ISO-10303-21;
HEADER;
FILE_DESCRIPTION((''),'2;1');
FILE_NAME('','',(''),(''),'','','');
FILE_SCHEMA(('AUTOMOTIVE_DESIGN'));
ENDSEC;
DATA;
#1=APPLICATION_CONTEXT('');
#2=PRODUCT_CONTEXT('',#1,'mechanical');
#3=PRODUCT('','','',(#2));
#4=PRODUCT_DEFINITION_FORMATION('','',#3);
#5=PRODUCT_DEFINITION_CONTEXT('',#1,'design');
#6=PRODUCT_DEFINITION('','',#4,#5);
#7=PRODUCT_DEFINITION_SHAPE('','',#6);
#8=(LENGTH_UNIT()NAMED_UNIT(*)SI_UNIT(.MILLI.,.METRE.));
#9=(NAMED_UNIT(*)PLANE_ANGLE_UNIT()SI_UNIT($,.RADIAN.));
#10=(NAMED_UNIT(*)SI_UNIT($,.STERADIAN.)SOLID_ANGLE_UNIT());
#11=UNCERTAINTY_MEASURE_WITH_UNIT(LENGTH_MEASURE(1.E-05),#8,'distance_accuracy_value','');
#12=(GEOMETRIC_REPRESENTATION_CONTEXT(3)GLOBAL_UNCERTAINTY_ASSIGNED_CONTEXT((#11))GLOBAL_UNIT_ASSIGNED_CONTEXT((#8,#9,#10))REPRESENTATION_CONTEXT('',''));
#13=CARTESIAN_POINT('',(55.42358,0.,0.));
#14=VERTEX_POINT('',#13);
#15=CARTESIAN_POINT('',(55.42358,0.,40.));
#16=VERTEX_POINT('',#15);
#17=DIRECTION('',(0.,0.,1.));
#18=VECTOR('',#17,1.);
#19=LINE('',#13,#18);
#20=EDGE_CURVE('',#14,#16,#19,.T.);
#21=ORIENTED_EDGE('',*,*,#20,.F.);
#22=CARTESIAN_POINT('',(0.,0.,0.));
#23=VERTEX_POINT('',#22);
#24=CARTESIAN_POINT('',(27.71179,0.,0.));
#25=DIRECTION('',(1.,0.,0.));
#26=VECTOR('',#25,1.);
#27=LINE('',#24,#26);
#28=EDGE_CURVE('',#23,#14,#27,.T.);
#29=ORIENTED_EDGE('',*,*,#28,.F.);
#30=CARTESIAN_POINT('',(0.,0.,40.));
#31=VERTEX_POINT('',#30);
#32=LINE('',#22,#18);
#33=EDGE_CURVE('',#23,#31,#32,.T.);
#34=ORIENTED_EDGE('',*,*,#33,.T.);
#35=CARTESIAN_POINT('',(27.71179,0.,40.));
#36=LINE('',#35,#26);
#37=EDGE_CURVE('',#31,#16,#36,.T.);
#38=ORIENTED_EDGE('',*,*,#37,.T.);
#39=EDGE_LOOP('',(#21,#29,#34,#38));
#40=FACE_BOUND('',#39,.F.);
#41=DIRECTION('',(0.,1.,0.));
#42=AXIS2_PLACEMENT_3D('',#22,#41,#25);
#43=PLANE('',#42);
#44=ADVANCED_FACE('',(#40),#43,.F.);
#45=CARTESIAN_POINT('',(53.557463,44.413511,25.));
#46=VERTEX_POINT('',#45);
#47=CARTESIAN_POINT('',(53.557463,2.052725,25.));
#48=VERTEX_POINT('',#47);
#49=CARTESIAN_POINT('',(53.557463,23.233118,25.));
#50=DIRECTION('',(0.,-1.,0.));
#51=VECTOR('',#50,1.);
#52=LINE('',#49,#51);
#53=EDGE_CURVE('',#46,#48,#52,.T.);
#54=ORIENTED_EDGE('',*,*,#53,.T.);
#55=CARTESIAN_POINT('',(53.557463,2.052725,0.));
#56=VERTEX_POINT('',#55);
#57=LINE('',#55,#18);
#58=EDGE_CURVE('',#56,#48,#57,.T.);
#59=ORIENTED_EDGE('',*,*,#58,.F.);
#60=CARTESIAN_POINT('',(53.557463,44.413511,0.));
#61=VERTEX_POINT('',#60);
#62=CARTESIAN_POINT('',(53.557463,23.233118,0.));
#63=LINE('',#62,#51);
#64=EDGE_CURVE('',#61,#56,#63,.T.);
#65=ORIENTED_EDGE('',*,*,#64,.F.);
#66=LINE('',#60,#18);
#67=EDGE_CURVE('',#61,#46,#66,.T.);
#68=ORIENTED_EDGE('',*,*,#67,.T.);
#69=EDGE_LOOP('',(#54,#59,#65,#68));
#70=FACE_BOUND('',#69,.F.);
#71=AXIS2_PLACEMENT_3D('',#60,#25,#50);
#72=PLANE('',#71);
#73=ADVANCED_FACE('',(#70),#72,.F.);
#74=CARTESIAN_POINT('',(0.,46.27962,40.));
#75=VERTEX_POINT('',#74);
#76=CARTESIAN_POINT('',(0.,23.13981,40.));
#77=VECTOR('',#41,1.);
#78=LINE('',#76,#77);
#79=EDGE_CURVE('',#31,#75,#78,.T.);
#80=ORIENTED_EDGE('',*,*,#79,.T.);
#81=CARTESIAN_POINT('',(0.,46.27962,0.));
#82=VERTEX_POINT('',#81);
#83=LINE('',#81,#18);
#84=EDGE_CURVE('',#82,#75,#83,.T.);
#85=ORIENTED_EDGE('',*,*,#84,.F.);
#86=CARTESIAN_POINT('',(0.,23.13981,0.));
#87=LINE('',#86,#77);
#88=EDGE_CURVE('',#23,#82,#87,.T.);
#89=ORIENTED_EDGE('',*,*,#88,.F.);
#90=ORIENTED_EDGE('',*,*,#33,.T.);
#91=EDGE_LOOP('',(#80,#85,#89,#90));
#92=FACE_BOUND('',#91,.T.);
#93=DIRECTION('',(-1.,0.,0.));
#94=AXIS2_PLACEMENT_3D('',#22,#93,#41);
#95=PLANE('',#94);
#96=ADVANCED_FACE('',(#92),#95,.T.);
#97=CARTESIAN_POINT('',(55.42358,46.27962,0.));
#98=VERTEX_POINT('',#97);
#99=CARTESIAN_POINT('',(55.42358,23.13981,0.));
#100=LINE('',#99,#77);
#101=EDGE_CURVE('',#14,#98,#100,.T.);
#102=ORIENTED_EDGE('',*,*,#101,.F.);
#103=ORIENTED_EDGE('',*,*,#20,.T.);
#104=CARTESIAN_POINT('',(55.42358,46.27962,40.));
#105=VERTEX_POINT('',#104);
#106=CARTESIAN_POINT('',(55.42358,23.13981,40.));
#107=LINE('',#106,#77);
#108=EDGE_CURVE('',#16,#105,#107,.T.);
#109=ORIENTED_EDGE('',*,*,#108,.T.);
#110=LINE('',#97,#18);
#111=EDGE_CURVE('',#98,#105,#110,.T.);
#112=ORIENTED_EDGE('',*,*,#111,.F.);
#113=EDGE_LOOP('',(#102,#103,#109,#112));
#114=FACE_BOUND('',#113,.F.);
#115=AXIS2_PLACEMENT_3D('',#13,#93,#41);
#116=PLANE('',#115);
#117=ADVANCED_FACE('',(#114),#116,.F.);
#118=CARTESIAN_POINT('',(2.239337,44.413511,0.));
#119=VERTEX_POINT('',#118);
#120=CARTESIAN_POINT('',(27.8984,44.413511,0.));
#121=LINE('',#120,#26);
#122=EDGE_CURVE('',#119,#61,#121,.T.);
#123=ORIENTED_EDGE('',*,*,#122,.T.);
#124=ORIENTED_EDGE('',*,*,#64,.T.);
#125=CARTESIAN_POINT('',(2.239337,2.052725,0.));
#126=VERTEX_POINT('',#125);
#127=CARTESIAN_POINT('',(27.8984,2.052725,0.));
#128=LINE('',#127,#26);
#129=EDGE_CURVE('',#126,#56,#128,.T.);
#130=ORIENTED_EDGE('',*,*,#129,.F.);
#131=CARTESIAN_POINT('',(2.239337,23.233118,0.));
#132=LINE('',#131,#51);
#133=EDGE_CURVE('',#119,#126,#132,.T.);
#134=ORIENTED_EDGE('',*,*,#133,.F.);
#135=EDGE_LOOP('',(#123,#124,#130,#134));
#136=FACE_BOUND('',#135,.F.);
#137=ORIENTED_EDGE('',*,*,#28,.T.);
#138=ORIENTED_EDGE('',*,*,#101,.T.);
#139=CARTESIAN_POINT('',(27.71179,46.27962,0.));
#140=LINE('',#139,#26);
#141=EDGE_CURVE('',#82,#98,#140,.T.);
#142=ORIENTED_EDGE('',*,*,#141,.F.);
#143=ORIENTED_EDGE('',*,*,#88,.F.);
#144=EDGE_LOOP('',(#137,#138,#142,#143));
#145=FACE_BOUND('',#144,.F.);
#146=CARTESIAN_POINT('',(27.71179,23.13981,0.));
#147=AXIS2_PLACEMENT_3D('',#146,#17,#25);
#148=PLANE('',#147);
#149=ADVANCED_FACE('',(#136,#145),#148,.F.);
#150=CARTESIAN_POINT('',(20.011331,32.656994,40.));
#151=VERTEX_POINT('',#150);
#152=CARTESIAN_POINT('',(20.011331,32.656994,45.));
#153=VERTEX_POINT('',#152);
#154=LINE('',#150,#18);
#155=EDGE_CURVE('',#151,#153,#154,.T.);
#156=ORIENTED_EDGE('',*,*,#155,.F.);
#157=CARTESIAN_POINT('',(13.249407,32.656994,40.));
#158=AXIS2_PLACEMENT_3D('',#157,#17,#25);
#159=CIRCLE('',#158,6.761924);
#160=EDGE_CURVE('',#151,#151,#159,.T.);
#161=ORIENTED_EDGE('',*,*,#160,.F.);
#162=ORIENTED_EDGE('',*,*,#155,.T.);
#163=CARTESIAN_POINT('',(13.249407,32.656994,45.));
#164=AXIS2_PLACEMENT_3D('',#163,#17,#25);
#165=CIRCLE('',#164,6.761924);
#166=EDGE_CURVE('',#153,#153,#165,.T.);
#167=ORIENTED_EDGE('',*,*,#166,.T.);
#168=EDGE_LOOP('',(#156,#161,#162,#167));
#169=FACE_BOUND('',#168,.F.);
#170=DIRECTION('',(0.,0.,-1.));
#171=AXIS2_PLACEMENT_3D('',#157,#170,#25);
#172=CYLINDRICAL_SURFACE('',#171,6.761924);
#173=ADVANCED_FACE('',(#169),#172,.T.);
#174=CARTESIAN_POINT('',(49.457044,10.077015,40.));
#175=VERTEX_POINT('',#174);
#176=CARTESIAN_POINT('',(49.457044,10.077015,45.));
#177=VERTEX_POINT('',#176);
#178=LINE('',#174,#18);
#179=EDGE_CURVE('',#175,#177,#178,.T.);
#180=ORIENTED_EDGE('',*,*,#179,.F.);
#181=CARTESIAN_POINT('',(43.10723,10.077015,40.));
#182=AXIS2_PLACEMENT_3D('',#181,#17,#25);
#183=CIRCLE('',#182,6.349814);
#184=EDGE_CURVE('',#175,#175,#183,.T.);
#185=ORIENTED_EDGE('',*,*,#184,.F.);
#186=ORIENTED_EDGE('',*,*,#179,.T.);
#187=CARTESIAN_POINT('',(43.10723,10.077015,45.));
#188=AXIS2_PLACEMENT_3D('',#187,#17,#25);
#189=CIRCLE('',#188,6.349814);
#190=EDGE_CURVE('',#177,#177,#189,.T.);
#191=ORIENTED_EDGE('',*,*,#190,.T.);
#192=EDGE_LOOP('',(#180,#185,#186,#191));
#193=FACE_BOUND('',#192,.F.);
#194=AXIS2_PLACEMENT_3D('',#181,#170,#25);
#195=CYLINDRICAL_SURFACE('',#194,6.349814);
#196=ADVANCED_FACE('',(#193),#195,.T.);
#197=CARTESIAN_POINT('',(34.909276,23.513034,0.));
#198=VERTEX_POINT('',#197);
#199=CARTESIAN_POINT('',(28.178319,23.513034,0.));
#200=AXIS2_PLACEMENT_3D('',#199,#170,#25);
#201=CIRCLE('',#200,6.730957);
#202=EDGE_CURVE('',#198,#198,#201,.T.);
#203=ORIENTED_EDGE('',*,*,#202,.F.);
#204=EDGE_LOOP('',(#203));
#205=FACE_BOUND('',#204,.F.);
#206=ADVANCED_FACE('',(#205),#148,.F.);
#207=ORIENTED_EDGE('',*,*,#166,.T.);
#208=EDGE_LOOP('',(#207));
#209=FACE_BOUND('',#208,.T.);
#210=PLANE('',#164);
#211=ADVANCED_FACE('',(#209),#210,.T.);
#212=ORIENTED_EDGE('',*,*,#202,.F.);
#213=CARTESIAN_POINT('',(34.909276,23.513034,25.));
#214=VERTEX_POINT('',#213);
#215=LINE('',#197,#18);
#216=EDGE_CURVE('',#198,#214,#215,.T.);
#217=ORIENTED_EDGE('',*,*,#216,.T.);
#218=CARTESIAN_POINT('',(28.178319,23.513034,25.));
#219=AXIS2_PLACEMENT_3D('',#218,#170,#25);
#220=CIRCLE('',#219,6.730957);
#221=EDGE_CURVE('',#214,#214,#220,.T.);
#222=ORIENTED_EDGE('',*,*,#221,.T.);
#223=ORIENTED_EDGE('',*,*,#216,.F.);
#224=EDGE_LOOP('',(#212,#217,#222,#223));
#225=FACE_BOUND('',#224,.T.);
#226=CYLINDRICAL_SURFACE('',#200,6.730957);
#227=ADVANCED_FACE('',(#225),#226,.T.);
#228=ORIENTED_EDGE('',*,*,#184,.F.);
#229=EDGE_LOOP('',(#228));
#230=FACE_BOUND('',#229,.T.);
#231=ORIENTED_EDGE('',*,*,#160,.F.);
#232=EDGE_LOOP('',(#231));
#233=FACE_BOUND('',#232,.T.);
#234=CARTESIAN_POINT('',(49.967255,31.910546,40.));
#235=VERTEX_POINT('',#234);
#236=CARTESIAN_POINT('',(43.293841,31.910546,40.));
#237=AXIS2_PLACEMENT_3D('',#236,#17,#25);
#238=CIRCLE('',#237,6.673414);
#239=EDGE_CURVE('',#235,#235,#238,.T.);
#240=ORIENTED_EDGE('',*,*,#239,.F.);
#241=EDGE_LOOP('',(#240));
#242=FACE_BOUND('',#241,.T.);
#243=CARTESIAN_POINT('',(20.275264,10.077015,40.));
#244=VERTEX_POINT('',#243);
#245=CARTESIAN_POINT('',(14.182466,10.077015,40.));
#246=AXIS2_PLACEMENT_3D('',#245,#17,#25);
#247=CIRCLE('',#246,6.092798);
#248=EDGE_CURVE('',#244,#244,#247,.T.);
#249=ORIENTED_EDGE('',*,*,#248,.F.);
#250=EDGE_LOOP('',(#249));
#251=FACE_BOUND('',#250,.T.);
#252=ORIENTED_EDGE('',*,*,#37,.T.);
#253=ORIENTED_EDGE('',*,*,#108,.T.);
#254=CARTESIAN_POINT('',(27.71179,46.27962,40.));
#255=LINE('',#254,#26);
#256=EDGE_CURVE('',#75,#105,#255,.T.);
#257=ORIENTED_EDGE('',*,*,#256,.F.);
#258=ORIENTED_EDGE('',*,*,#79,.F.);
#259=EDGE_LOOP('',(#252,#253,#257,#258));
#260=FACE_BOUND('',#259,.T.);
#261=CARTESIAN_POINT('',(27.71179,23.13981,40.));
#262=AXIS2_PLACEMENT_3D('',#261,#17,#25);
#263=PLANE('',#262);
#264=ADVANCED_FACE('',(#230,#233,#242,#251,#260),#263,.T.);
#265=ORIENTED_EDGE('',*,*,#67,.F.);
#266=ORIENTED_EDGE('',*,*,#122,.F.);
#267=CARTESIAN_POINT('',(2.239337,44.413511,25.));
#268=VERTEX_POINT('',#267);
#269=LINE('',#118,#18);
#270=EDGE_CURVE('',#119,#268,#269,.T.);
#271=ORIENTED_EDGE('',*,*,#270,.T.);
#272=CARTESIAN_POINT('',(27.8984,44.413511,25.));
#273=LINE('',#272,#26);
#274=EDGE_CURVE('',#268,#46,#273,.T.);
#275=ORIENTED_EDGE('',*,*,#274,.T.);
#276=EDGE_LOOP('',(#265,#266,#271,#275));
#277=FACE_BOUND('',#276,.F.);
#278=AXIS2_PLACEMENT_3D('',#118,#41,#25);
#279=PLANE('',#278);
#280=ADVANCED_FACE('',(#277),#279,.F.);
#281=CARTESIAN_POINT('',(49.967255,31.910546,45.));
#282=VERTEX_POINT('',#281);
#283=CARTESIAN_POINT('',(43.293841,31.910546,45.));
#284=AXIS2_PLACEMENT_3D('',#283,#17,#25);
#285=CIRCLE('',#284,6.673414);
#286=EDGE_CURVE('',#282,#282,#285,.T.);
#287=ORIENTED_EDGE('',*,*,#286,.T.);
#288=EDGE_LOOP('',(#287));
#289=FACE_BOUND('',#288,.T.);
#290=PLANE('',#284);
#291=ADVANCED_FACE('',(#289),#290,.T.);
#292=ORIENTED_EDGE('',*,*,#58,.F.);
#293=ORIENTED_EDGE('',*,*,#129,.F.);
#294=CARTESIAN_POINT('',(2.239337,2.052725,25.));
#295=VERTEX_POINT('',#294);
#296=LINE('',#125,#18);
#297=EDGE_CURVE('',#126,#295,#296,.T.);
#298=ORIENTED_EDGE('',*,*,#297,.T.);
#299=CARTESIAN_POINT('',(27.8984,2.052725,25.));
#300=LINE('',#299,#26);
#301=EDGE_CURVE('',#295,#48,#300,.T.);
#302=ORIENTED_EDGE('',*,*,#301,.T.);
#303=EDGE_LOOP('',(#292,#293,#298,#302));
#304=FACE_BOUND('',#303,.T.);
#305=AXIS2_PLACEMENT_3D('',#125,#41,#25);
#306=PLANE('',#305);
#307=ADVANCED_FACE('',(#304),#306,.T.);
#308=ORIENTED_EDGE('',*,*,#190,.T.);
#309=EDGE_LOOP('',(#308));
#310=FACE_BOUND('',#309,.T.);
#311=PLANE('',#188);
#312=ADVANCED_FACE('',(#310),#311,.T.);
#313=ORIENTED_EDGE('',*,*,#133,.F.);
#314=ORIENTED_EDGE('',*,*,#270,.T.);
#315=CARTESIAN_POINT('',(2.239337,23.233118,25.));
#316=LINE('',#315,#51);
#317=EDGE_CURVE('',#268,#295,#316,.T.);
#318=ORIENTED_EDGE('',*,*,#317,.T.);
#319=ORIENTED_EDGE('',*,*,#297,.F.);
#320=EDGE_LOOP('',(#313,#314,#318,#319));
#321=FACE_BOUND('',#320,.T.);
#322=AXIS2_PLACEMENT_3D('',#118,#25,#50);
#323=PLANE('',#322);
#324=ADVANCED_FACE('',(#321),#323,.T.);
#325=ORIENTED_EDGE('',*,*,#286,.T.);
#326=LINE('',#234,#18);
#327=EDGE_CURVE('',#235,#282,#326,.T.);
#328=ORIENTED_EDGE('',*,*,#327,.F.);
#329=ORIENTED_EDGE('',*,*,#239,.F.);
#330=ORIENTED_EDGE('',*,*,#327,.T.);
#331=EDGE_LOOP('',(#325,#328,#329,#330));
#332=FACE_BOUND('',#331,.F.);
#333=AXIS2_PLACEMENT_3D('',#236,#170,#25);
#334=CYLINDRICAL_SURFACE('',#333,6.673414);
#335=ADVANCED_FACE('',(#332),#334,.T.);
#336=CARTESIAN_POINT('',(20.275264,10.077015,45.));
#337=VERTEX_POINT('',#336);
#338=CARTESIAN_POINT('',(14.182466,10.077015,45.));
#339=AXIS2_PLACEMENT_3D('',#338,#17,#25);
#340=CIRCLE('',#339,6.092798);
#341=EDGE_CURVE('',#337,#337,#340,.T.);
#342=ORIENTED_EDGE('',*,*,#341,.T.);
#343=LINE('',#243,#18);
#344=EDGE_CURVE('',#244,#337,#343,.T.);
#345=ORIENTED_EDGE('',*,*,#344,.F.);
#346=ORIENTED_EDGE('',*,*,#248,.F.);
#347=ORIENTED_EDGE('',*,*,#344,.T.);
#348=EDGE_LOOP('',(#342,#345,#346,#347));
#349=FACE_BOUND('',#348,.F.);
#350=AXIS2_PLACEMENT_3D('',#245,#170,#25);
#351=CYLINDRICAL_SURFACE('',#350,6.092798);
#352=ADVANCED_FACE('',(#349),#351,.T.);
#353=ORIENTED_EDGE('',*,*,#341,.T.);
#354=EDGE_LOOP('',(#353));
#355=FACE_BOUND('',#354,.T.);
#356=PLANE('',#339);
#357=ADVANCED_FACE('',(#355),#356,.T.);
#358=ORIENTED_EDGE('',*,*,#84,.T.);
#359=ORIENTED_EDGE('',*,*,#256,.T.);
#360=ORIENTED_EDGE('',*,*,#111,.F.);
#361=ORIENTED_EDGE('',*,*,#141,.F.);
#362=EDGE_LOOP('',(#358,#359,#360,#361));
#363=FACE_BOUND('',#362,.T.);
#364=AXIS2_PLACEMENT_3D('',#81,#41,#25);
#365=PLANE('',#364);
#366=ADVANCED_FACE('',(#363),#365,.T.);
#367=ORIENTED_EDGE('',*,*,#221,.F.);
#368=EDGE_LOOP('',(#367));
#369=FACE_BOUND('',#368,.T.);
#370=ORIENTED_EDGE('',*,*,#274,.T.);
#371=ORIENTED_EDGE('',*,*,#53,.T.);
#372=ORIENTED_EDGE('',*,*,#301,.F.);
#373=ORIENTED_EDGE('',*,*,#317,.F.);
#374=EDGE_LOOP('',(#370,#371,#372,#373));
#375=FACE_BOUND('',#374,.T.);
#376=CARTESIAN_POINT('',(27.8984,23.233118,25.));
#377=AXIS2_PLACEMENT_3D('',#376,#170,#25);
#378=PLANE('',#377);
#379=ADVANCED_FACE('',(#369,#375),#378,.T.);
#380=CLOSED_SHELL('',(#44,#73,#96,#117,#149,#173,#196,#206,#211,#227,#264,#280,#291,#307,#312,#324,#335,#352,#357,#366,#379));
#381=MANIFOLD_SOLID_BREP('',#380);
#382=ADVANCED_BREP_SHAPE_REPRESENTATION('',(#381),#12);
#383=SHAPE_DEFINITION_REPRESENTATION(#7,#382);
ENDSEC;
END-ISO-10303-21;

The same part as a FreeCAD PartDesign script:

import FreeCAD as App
import Part
import Sketcher

V = App.Vector
Q = App.Units.Quantity


def add_polygon(sketch, points):
    """Adds a closed chain of lines whose ends are joined by coincident constraints."""
    first, n = sketch.GeometryCount, len(points)
    for a, b in zip(points, points[1:] + points[:1]):
        sketch.addGeometry(Part.LineSegment(App.Vector(*a, 0), App.Vector(*b, 0)), False)
    for i in range(n):
        sketch.addConstraint(Sketcher.Constraint("Coincident", first + i, 2, first + (i + 1) % n, 1))

doc = App.newDocument("Part")
body = doc.addObject("PartDesign::Body", "Body")

sketch1 = body.newObject("Sketcher::SketchObject", "Sketch")
sketch1.AttachmentSupport = (doc.getObject("XY_Plane"), [""])
sketch1.MapMode = "FlatFace"
add_polygon(sketch1, [(0, 46), (0, 0), (55, 0), (55, 46)])
sketch1.addConstraint([
    Sketcher.Constraint("Vertical", 0),
    Sketcher.Constraint("Horizontal", 1),
    Sketcher.Constraint("Vertical", 2),
    Sketcher.Constraint("Horizontal", 3),
    Sketcher.Constraint("Coincident", 0, 2, -1, 1),
    Sketcher.Constraint("DistanceX", 1, 1, 1, 2, Q("55.42358 mm")),
    Sketcher.Constraint("DistanceY", 0, 2, 0, 1, Q("46.27962 mm")),
])
pad1 = body.newObject("PartDesign::Pad", "Pad")
pad1.Profile = sketch1
pad1.Length = 40

sketch2 = body.newObject("Sketcher::SketchObject", "Sketch001")
sketch2.AttachmentSupport = (doc.getObject("XY_Plane"), [""])
sketch2.MapMode = "FlatFace"
sketch2.AttachmentOffset = App.Placement(V(0, 0, 40), App.Rotation())
sketch2.addGeometry([
    Part.Circle(V(13, 33, 0), V(0, 0, 1), 7),
    Part.Circle(V(43, 32, 0), V(0, 0, 1), 7),
    Part.Circle(V(14, 10, 0), V(0, 0, 1), 6),
    Part.Circle(V(43, 10, 0), V(0, 0, 1), 6),
], False)
sketch2.addConstraint([
    Sketcher.Constraint("Horizontal", 2, 3, 3, 3),
    Sketcher.Constraint("Diameter", 0, Q("13.523848 mm")),
    Sketcher.Constraint("Diameter", 1, Q("13.346828 mm")),
    Sketcher.Constraint("Diameter", 2, Q("12.185596 mm")),
    Sketcher.Constraint("Diameter", 3, Q("12.699628 mm")),
    Sketcher.Constraint("DistanceX", -1, 1, 1, 3, Q("43.293841 mm")),
    Sketcher.Constraint("DistanceX", -1, 1, 3, 3, Q("43.10723 mm")),
    Sketcher.Constraint("DistanceX", 0, 3, 2, 3, Q("0.933059 mm")),
    Sketcher.Constraint("DistanceY", 2, 3, 0, 3, Q("22.579979 mm")),
    Sketcher.Constraint("DistanceY", 2, 3, 1, 3, Q("21.833531 mm")),
    Sketcher.Constraint("DistanceX", -1, 1, 0, 3, Q("13.249407 mm")),
    Sketcher.Constraint("DistanceY", -1, 1, 0, 3, Q("32.656994 mm")),
])
pad2 = body.newObject("PartDesign::Pad", "Pad001")
pad2.Profile = sketch2
pad2.Length = 5

sketch3 = body.newObject("Sketcher::SketchObject", "Sketch002")
sketch3.AttachmentSupport = (doc.getObject("XY_Plane"), [""])
sketch3.MapMode = "FlatFace"
add_polygon(sketch3, [(2, 2), (2, 44), (54, 44), (54, 2)])
sketch3.addGeometry(Part.Circle(V(28, 24, 0), V(0, 0, 1), 7), False)
sketch3.addConstraint([
    Sketcher.Constraint("Vertical", 0),
    Sketcher.Constraint("Horizontal", 1),
    Sketcher.Constraint("Vertical", 2),
    Sketcher.Constraint("Horizontal", 3),
    Sketcher.Constraint("Diameter", 4, Q("13.461914 mm")),
    Sketcher.Constraint("DistanceX", 1, 1, 1, 2, Q("51.318126 mm")),
    Sketcher.Constraint("DistanceY", 0, 1, 0, 2, Q("42.360786 mm")),
    Sketcher.Constraint("DistanceX", -1, 1, 4, 3, Q("28.178319 mm")),
    Sketcher.Constraint("DistanceY", -1, 1, 0, 2, Q("44.413511 mm")),
    Sketcher.Constraint("DistanceX", 0, 2, 4, 3, Q("25.938982 mm")),
    Sketcher.Constraint("DistanceY", 2, 2, 4, 3, Q("21.460309 mm")),
])
pocket1 = body.newObject("PartDesign::Pocket", "Pocket")
pocket1.Profile = sketch3
pocket1.Length = 25
pocket1.Reversed = True

doc.recompute()
